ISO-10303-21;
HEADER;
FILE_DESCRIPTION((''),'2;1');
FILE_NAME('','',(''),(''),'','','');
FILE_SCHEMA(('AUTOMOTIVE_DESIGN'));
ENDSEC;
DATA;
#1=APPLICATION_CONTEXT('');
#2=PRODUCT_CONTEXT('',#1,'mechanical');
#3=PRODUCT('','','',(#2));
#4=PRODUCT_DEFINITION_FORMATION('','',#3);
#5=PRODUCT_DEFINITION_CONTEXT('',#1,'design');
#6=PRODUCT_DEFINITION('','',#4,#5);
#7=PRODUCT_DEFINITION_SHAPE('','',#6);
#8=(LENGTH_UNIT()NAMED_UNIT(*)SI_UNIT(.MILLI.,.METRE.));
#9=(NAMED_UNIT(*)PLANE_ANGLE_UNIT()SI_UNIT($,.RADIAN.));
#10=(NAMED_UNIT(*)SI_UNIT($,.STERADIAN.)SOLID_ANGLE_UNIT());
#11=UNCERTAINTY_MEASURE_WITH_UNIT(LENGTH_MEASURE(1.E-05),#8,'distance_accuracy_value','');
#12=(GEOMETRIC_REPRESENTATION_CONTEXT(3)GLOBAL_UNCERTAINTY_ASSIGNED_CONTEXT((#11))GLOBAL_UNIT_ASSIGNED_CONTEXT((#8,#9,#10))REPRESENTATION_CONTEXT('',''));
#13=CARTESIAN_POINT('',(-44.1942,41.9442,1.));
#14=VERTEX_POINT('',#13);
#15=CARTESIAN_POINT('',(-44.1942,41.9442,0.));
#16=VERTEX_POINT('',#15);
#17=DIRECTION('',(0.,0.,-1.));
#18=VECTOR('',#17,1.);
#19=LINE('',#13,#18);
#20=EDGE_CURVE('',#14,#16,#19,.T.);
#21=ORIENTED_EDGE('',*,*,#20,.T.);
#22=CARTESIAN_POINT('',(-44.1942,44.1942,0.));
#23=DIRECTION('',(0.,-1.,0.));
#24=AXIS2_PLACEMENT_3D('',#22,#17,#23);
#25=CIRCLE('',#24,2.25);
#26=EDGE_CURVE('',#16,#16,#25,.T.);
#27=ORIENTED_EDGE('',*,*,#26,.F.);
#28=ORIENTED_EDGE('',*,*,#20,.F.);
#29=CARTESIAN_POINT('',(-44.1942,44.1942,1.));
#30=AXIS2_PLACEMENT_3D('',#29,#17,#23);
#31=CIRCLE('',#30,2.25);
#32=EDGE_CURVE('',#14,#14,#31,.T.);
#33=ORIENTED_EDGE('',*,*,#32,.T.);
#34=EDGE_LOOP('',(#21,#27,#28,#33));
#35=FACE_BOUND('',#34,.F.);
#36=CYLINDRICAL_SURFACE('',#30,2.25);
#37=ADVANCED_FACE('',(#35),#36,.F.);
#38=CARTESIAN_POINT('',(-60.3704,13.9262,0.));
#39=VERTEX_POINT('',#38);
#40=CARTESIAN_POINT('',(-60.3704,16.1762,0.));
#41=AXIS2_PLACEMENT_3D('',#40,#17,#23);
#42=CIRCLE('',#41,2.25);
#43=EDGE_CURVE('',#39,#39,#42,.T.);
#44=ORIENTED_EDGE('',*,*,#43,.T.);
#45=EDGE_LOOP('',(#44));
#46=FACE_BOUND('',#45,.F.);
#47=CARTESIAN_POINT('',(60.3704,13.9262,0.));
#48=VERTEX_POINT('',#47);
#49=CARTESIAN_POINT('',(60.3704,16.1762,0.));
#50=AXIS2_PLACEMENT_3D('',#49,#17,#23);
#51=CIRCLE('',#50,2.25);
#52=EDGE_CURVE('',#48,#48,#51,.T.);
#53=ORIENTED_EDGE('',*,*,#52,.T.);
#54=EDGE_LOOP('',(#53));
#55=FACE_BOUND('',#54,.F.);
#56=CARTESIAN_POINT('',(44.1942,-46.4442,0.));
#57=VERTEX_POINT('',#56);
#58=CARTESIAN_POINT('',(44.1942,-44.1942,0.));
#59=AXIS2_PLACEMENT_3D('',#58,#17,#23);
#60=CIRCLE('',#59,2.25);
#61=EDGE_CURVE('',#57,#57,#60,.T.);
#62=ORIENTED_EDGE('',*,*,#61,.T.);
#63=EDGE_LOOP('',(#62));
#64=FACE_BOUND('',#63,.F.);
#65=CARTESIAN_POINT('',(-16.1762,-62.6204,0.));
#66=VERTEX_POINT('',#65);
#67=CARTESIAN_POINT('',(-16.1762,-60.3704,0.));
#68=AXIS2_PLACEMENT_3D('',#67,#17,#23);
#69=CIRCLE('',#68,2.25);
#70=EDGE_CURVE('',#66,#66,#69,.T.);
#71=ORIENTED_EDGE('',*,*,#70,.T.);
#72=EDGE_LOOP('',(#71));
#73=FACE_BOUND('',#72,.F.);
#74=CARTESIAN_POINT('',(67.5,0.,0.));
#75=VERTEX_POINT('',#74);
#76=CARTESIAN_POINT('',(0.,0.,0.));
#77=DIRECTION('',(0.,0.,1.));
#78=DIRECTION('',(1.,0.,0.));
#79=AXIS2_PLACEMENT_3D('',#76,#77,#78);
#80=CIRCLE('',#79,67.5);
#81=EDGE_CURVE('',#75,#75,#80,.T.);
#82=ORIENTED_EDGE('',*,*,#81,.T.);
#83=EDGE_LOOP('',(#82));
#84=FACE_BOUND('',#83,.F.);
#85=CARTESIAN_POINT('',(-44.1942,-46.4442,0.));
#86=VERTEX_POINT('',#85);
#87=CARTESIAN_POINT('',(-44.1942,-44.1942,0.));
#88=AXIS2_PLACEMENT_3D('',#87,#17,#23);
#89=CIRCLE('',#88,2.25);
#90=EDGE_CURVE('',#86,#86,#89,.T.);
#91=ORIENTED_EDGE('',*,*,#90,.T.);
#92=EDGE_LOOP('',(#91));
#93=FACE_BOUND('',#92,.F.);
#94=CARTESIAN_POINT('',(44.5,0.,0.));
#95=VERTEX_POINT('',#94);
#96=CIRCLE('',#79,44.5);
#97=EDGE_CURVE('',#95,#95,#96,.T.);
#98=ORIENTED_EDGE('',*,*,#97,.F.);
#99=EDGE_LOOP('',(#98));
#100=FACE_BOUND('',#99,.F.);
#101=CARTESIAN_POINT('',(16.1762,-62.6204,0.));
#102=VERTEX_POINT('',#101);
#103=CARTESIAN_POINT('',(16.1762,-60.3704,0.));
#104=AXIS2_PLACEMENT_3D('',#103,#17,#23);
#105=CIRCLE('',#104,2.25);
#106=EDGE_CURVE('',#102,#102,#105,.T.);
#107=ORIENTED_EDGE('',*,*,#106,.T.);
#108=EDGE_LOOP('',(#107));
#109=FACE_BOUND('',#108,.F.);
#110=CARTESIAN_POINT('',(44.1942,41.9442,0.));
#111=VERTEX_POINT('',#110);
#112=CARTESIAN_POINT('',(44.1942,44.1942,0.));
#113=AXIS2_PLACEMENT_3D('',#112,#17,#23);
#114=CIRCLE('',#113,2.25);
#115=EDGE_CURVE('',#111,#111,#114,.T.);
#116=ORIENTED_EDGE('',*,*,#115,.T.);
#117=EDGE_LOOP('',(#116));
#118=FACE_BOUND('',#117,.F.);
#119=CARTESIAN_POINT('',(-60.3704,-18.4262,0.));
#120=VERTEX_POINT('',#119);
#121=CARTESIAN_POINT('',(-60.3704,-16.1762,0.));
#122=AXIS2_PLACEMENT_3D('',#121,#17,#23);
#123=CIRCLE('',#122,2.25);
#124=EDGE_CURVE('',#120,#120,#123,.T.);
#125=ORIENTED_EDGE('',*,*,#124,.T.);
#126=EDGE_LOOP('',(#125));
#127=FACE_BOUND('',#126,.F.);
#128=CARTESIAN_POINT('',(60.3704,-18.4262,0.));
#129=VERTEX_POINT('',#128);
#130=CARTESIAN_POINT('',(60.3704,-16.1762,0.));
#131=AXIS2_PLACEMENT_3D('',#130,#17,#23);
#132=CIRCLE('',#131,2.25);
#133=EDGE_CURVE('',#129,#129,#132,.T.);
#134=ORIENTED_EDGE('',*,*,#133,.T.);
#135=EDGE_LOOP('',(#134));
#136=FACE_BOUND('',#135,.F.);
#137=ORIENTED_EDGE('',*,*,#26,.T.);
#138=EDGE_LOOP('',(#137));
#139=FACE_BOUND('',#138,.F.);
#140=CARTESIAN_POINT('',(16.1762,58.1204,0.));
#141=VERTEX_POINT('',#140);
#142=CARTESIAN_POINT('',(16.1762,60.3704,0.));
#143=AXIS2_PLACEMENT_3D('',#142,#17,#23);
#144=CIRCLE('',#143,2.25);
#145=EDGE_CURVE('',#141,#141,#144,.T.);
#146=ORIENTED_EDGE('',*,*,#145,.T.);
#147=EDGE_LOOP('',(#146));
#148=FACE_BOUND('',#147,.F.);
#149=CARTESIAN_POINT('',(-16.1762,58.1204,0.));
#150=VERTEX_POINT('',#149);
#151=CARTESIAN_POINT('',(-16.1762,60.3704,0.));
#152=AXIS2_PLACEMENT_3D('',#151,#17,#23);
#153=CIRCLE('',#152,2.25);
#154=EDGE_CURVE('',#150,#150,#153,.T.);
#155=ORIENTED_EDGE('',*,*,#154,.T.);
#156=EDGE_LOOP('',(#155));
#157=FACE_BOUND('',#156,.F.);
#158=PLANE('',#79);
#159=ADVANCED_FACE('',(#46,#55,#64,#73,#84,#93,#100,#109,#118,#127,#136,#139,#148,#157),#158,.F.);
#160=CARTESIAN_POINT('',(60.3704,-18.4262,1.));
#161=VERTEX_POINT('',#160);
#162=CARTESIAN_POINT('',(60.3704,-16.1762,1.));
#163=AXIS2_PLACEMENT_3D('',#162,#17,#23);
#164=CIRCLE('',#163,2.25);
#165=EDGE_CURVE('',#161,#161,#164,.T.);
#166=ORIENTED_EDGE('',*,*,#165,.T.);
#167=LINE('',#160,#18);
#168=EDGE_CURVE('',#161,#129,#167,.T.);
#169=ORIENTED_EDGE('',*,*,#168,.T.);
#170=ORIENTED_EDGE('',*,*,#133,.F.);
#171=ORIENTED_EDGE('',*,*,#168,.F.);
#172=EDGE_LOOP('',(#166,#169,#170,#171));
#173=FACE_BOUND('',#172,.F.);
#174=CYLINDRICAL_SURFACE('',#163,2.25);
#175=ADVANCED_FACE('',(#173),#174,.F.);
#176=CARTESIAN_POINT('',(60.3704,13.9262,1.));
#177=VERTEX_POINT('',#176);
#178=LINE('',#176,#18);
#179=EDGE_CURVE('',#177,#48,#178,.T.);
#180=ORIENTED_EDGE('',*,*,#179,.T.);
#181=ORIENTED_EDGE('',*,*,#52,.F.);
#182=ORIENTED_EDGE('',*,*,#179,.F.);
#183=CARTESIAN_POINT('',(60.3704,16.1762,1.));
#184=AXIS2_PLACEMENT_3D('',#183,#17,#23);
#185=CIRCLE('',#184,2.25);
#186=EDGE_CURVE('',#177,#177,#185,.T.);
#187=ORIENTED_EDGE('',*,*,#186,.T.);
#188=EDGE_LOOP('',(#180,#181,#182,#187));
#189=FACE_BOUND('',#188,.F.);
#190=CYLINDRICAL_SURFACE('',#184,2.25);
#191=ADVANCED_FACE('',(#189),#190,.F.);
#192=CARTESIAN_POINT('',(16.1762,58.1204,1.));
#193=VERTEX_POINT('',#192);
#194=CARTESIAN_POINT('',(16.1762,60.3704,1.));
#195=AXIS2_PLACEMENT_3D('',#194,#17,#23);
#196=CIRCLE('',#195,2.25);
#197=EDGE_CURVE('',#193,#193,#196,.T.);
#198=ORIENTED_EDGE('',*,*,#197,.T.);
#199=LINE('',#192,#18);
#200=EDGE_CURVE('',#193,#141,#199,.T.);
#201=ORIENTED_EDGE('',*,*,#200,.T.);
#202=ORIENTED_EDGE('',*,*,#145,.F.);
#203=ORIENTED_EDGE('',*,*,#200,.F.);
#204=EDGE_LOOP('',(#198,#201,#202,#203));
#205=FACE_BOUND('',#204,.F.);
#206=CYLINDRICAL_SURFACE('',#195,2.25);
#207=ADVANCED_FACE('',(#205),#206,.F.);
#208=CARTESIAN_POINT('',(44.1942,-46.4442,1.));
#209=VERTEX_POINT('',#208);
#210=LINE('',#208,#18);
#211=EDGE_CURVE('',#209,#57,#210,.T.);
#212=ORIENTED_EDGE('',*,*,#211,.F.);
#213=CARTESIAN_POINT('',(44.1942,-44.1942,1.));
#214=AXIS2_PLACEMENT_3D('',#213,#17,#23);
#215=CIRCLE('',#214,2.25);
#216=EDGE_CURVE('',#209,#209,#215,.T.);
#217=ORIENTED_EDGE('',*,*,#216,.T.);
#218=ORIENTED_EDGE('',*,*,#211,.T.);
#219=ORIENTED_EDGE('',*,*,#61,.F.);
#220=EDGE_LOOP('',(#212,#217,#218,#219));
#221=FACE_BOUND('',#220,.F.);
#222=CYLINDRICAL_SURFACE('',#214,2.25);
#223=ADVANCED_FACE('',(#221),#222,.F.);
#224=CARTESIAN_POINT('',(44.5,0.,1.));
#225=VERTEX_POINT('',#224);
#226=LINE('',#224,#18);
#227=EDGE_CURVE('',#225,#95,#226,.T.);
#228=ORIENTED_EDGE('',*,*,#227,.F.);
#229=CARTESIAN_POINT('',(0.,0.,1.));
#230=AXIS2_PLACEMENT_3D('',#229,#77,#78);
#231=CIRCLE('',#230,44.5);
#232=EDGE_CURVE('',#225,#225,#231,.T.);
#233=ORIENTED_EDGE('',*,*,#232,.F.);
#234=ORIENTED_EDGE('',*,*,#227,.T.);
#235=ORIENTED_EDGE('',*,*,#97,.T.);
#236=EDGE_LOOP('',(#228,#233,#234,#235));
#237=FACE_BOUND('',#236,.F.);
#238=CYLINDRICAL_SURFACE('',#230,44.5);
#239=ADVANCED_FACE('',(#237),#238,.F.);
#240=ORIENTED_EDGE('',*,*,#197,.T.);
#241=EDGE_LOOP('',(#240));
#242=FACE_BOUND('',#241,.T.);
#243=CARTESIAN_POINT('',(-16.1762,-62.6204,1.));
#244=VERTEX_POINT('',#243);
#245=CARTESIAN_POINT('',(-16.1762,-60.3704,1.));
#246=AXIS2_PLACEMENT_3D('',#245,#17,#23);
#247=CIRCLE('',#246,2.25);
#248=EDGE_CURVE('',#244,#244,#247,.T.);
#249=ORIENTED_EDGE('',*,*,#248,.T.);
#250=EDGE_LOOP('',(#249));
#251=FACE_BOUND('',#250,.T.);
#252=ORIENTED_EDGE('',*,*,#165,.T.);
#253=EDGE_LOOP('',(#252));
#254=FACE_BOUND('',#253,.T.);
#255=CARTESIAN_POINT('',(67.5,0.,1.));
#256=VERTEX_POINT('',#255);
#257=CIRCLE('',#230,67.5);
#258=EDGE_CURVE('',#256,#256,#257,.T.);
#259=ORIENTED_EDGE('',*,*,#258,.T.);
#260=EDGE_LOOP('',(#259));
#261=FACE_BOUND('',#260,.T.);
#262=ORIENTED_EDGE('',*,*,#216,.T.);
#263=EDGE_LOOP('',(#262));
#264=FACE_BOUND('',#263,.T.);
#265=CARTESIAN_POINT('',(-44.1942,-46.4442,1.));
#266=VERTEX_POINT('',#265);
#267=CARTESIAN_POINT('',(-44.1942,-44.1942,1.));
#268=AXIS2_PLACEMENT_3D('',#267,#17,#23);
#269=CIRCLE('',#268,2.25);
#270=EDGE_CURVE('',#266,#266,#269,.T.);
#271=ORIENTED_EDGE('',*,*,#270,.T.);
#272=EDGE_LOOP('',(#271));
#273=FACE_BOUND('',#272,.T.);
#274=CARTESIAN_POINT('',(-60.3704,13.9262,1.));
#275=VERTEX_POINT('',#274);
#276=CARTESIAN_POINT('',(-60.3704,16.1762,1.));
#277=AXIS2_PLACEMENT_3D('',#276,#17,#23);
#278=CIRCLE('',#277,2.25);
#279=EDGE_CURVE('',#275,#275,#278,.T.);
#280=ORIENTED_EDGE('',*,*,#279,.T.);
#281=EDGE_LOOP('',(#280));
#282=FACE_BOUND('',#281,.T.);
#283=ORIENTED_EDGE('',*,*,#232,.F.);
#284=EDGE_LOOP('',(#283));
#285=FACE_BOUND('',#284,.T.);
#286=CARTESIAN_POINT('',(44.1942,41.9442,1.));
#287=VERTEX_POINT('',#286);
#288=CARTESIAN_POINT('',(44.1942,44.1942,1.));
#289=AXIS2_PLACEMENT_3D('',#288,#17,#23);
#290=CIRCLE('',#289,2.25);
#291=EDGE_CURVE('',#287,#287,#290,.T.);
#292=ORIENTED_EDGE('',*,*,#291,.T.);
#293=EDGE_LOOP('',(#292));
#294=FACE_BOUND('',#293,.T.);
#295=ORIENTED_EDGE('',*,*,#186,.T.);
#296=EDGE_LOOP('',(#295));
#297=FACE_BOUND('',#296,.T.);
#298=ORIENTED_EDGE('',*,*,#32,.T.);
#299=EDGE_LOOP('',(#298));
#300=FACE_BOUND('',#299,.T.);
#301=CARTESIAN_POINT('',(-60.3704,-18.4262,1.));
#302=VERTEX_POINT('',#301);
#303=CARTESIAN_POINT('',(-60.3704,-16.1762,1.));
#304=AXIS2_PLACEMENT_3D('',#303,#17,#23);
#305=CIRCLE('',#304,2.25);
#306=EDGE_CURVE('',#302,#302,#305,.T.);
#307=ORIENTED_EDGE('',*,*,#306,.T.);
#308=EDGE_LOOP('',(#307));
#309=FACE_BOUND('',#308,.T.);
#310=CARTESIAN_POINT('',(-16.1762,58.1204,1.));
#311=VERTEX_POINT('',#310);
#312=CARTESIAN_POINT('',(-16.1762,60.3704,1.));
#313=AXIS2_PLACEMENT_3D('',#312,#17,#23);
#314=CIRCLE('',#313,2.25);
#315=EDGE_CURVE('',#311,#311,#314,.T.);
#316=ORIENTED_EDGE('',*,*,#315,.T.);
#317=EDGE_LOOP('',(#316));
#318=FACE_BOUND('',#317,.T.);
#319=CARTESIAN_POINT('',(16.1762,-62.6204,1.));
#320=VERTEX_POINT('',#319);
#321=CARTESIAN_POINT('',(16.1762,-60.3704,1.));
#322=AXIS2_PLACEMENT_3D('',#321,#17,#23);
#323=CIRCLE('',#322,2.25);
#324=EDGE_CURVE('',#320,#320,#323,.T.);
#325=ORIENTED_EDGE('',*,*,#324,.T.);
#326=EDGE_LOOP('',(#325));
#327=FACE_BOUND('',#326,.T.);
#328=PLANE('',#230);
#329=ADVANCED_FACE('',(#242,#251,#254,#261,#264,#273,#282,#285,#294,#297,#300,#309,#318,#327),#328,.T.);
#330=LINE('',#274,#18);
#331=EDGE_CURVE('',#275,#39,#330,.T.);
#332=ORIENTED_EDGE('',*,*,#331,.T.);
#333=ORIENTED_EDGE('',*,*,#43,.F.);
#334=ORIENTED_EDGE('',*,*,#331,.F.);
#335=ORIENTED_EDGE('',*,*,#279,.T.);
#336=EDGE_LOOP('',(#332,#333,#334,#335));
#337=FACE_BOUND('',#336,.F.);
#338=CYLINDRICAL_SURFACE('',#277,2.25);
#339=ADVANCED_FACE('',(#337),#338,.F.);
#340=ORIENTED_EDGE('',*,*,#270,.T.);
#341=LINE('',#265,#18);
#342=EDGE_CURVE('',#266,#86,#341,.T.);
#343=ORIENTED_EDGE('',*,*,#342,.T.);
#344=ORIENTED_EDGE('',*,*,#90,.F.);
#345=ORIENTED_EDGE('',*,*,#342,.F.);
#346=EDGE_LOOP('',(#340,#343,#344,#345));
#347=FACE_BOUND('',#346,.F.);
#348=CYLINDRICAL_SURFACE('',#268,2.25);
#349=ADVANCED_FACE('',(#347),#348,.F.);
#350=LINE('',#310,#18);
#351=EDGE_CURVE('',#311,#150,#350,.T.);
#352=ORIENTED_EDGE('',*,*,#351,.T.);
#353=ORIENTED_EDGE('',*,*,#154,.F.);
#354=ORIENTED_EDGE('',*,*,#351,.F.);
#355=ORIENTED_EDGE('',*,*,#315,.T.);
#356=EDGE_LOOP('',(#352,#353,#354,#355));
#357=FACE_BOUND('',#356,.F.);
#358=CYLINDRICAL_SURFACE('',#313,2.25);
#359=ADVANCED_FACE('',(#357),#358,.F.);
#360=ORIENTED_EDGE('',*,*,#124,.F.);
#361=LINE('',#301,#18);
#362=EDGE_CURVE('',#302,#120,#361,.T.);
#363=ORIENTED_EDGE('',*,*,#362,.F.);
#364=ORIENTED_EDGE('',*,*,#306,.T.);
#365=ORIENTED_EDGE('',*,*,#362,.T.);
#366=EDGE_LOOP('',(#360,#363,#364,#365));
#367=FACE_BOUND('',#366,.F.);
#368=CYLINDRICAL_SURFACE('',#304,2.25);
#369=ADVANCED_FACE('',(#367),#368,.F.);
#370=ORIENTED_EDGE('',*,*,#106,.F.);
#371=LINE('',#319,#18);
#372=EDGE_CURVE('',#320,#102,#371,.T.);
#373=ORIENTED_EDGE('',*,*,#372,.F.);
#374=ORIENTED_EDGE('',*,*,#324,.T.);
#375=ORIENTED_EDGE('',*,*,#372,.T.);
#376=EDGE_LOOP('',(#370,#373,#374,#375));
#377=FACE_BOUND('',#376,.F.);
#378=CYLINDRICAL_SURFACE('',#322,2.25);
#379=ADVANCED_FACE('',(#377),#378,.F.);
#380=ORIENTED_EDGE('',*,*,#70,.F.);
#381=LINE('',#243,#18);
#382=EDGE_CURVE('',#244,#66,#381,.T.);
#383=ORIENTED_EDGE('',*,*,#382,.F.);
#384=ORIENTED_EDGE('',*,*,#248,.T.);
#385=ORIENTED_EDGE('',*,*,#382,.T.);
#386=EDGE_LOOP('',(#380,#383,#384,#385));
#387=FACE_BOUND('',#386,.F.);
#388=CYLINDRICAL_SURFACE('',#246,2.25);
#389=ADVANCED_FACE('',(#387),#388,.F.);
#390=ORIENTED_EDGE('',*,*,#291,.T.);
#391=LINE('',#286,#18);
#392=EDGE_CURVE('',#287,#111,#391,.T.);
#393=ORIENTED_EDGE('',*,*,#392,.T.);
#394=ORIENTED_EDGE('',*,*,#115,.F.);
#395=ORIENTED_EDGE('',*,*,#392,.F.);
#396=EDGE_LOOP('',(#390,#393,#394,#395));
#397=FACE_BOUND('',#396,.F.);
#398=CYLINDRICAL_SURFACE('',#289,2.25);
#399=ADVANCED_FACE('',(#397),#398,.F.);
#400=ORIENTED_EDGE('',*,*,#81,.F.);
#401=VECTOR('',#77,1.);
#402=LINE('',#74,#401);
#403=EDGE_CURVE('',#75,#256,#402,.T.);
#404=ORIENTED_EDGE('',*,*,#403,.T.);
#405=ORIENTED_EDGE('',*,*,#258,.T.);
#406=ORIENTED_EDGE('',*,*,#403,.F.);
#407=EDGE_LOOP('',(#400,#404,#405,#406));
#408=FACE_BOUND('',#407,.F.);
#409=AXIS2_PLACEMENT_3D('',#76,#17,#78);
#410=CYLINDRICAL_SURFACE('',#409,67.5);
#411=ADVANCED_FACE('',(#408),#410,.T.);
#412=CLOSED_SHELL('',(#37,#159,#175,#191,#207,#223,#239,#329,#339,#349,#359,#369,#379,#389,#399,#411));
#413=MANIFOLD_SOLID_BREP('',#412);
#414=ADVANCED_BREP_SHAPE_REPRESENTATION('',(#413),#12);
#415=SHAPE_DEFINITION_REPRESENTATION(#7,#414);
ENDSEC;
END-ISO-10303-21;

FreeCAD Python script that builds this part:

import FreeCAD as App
import Part
import Sketcher

V = App.Vector

doc = App.newDocument("Part")
body = doc.addObject("PartDesign::Body", "Body")

# Sketch on XY plane
sketch1 = doc.addObject("Sketcher::SketchObject", "Sketch")
body.addObject(sketch1)
sketch1.AttachmentSupport = (doc.XY_Plane, [""])
sketch1.MapMode = "FlatFace"
sketch1.addGeometry(Part.Circle(V(0, 0, 0), V(0, 0, 1), 68), False)
sketch1.addConstraint(Sketcher.Constraint("Coincident", 0, 3, -1, 1))
sketch1.addConstraint(Sketcher.Constraint("Diameter", 0, 135.0))
pad1 = doc.addObject("PartDesign::Pad", "Pad")
body.addObject(pad1)
pad1.Profile = sketch1
pad1.Length = 1

# Sketch on XY plane
sketch2 = doc.addObject("Sketcher::SketchObject", "Sketch001")
body.addObject(sketch2)
sketch2.AttachmentSupport = (doc.XY_Plane, [""])
sketch2.MapMode = "FlatFace"
sketch2.AttachmentOffset = App.Placement(V(0, 0, 1), App.Rotation())
sketch2.addGeometry(Part.Circle(V(0, 0, 0), V(0, 0, 1), 44), False)
sketch2.addConstraint(Sketcher.Constraint("Coincident", 0, 3, -1, 1))
sketch2.addConstraint(Sketcher.Constraint("Diameter", 0, 89.0))
pocket1 = doc.addObject("PartDesign::Pocket", "Pocket")
body.addObject(pocket1)
pocket1.Profile = sketch2
pocket1.Type = "ThroughAll"

# Sketch on XY plane
sketch3 = doc.addObject("Sketcher::SketchObject", "Sketch002")
body.addObject(sketch3)
sketch3.AttachmentSupport = (doc.XY_Plane, [""])
sketch3.MapMode = "FlatFace"
sketch3.AttachmentOffset = App.Placement(V(0, 0, 1), App.Rotation())
sketch3.addGeometry(Part.Circle(V(16.2, 60.4, 0), V(0, 0, 1), 2.2), False)
sketch3.addGeometry(Part.Circle(V(-16.2, 60.4, 0), V(0, 0, 1), 2.2), False)
sketch3.addGeometry(Part.Circle(V(-44.2, 44.2, 0), V(0, 0, 1), 2.2), False)
sketch3.addGeometry(Part.Circle(V(-60.4, 16.2, 0), V(0, 0, 1), 2.2), False)
sketch3.addGeometry(Part.Circle(V(-60.4, -16.2, 0), V(0, 0, 1), 2.2), False)
sketch3.addGeometry(Part.Circle(V(-44.2, -44.2, 0), V(0, 0, 1), 2.2), False)
sketch3.addGeometry(Part.Circle(V(-16.2, -60.4, 0), V(0, 0, 1), 2.2), False)
sketch3.addGeometry(Part.Circle(V(16.2, -60.4, 0), V(0, 0, 1), 2.2), False)
sketch3.addGeometry(Part.Circle(V(44.2, -44.2, 0), V(0, 0, 1), 2.2), False)
sketch3.addGeometry(Part.Circle(V(60.4, -16.2, 0), V(0, 0, 1), 2.2), False)
sketch3.addGeometry(Part.Circle(V(60.4, 16.2, 0), V(0, 0, 1), 2.2), False)
sketch3.addGeometry(Part.Circle(V(44.2, 44.2, 0), V(0, 0, 1), 2.2), False)
sketch3.addConstraint(Sketcher.Constraint("Equal", 0, 1))
sketch3.addConstraint(Sketcher.Constraint("Equal", 1, 2))
sketch3.addConstraint(Sketcher.Constraint("Equal", 2, 3))
sketch3.addConstraint(Sketcher.Constraint("Equal", 3, 4))
sketch3.addConstraint(Sketcher.Constraint("Equal", 4, 5))
sketch3.addConstraint(Sketcher.Constraint("Equal", 5, 6))
sketch3.addConstraint(Sketcher.Constraint("Equal", 6, 7))
sketch3.addConstraint(Sketcher.Constraint("Equal", 7, 8))
sketch3.addConstraint(Sketcher.Constraint("Equal", 8, 9))
sketch3.addConstraint(Sketcher.Constraint("Equal", 9, 10))
sketch3.addConstraint(Sketcher.Constraint("Equal", 10, 11))
sketch3.addConstraint(Sketcher.Constraint("Symmetric", 0, 3, 6, 3, -1, 1))
sketch3.addConstraint(Sketcher.Constraint("Symmetric", 1, 3, 7, 3, -1, 1))
sketch3.addConstraint(Sketcher.Constraint("Symmetric", 2, 3, 8, 3, -1, 1))
sketch3.addConstraint(Sketcher.Constraint("Symmetric", 3, 3, 9, 3, -1, 1))
sketch3.addConstraint(Sketcher.Constraint("Symmetric", 4, 3, 10, 3, -1, 1))
sketch3.addConstraint(Sketcher.Constraint("Symmetric", 5, 3, 11, 3, -1, 1))
sketch3.addConstraint(Sketcher.Constraint("Symmetric", 0, 3, 1, 3, -2))
sketch3.addConstraint(Sketcher.Constraint("Symmetric", 5, 3, 8, 3, -2))
sketch3.addConstraint(Sketcher.Constraint("Symmetric", 4, 3, 9, 3, -2))
sketch3.addConstraint(Sketcher.Constraint("Diameter", 0, 4.5))
sketch3.addConstraint(Sketcher.Constraint("DistanceX", 2, 3, 1, 3, 28.018))
sketch3.addConstraint(Sketcher.Constraint("DistanceY", 3, 3, 2, 3, 28.018))
sketch3.addConstraint(Sketcher.Constraint("DistanceX", -1, 1, 0, 3, 16.1762))
sketch3.addConstraint(Sketcher.Constraint("DistanceY", -1, 1, 0, 3, 60.3704))
sketch3.addConstraint(Sketcher.Constraint("DistanceY", -1, 1, 2, 3, 44.1942))
sketch3.addConstraint(Sketcher.Constraint("DistanceX", 3, 3, -1, 1, 60.3704))
doc.recompute()
hole = doc.addObject("PartDesign::Hole", "Hole")
body.addObject(hole)
hole.Profile = sketch3
hole.ThreadType = "None"
hole.Diameter = 4.5
hole.DepthType = "ThroughAll"

doc.recompute()
